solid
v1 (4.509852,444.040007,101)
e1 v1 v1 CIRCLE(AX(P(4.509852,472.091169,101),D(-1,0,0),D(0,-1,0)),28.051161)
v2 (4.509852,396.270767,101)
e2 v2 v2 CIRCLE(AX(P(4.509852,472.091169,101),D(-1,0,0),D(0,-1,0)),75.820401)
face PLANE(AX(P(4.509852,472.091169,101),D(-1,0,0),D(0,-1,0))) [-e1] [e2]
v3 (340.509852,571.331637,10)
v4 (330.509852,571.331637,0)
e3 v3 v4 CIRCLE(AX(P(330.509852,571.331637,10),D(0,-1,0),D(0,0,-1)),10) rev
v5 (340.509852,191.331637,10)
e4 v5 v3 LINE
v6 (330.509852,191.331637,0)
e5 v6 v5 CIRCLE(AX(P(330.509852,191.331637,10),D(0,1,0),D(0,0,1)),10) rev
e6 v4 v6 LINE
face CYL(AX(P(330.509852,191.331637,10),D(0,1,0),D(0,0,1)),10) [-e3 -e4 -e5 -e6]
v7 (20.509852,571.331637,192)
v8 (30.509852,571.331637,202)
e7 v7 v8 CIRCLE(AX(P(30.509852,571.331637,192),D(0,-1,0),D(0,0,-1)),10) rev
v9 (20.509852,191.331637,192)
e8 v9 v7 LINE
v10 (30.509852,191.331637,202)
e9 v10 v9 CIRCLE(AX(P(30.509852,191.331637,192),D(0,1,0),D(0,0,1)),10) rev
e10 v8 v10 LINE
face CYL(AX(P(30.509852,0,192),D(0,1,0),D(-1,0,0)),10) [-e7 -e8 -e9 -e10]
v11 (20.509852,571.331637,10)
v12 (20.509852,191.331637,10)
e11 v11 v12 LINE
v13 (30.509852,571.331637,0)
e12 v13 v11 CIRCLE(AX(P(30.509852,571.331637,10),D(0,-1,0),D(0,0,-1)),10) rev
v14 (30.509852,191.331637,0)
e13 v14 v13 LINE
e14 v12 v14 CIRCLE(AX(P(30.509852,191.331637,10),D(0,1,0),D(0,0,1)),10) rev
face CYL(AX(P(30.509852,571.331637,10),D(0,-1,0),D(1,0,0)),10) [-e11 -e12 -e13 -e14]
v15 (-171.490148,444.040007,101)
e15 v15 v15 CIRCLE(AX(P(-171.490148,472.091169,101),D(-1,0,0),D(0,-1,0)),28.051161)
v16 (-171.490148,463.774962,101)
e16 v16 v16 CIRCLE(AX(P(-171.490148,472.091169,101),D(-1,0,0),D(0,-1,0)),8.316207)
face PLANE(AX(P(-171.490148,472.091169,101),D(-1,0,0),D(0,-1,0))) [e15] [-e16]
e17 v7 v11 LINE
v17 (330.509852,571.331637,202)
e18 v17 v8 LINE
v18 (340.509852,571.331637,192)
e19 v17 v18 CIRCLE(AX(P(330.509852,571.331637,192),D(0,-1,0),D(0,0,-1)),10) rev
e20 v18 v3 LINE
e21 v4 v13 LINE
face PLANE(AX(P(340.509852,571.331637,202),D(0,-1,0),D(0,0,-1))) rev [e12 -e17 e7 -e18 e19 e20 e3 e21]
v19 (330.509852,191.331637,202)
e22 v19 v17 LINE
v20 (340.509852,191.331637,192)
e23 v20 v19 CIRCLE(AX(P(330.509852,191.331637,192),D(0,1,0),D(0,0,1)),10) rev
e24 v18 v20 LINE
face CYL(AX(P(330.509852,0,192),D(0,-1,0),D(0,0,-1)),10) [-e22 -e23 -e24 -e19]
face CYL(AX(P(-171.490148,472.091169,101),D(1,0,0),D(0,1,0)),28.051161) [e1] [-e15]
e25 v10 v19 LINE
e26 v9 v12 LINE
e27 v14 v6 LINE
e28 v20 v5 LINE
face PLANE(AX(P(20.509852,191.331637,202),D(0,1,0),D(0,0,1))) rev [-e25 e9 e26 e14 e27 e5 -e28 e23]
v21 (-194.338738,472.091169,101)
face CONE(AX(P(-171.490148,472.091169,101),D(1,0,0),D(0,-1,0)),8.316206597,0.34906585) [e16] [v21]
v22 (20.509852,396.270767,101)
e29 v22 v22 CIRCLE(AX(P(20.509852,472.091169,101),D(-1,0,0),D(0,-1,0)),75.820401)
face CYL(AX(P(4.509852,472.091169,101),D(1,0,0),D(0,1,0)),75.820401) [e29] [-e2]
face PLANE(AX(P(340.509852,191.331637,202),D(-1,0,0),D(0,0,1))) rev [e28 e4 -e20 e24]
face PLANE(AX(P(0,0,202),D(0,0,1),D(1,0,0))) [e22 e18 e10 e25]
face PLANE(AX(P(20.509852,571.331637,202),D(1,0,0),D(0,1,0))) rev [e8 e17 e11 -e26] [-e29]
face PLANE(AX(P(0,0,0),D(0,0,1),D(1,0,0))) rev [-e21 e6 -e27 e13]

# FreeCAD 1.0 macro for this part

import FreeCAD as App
import Part
import Sketcher
from FreeCAD import Vector
Q = App.Units.Quantity


def edges_at(feature, points):
    """Names of the edges that pass closest to the given points."""
    edges = feature.Shape.Edges
    near = lambda p: min(range(len(edges)), key=lambda i: edges[i].distToShape(Part.Vertex(*p))[0])
    return sorted({f"Edge{near(p) + 1}" for p in points})

doc = App.newDocument("Part")
body = doc.addObject("PartDesign::Body", "Body")

sketch1 = body.newObject("Sketcher::SketchObject", "Sketch")
sketch1.AttachmentSupport = (doc.getObject("XY_Plane"), [""])
sketch1.MapMode = "FlatFace"
sketch1.addGeometry([
    Part.LineSegment(Vector(21, 571, 0), Vector(21, 191, 0)),
    Part.LineSegment(Vector(21, 191, 0), Vector(341, 191, 0)),
    Part.LineSegment(Vector(341, 191, 0), Vector(341, 571, 0)),
    Part.LineSegment(Vector(341, 571, 0), Vector(21, 571, 0)),
], False)
sketch1.addConstraint([
    Sketcher.Constraint("Coincident", 0, 2, 1, 1),
    Sketcher.Constraint("Coincident", 1, 2, 2, 1),
    Sketcher.Constraint("Coincident", 2, 2, 3, 1),
    Sketcher.Constraint("Coincident", 3, 2, 0, 1),
    Sketcher.Constraint("Vertical", 0),
    Sketcher.Constraint("Horizontal", 1),
    Sketcher.Constraint("Vertical", 2),
    Sketcher.Constraint("Horizontal", 3),
    Sketcher.Constraint("DistanceX", 1, 1, 1, 2, Q("320 mm")),
    Sketcher.Constraint("DistanceY", 0, 2, 0, 1, Q("380 mm")),
    Sketcher.Constraint("DistanceX", -1, 1, 0, 2, Q("20.509852 mm")),
    Sketcher.Constraint("DistanceY", -1, 1, 0, 2, Q("191.331637 mm")),
])
pad1 = body.newObject("PartDesign::Pad", "Pad")
pad1.Profile = sketch1
pad1.Length = 202

sketch2 = body.newObject("Sketcher::SketchObject", "Sketch001")
sketch2.AttachmentSupport = (doc.getObject("YZ_Plane"), [""])
sketch2.MapMode = "FlatFace"
sketch2.AttachmentOffset = App.Placement(Vector(0, 0, 20.509852), App.Rotation())
sketch2.addGeometry(Part.Circle(Vector(472, 101, 0), Vector(0, 0, 1), 76), False)
sketch2.addConstraint([
    Sketcher.Constraint("DistanceY", -1, 1, 0, 3, Q("101 mm")),
    Sketcher.Constraint("Diameter", 0, Q("151.640803 mm")),
    Sketcher.Constraint("DistanceX", -1, 1, 0, 3, Q("472.091169 mm")),
])
pad2 = body.newObject("PartDesign::Pad", "Pad001")
pad2.Profile = sketch2
pad2.Length = 16
pad2.Reversed = True

sketch3 = body.newObject("Sketcher::SketchObject", "Sketch002")
sketch3.AttachmentSupport = (doc.getObject("YZ_Plane"), [""])
sketch3.MapMode = "FlatFace"
sketch3.AttachmentOffset = App.Placement(Vector(0, 0, 4.509852), App.Rotation())
sketch3.addGeometry(Part.Circle(Vector(472, 101, 0), Vector(0, 0, 1), 28), False)
sketch3.addConstraint([
    Sketcher.Constraint("DistanceY", -1, 1, 0, 3, Q("101 mm")),
    Sketcher.Constraint("Diameter", 0, Q("56.102323 mm")),
    Sketcher.Constraint("DistanceX", -1, 1, 0, 3, Q("472.091169 mm")),
])
pad3 = body.newObject("PartDesign::Pad", "Pad002")
pad3.Profile = sketch3
pad3.Length = 176
pad3.Reversed = True

sketch4 = body.newObject("Sketcher::SketchObject", "Sketch003")
sketch4.AttachmentSupport = (doc.getObject("XZ_Plane"), [""])
sketch4.MapMode = "FlatFace"
sketch4.AttachmentOffset = App.Placement(Vector(0, 0, -472.091169), App.Rotation())
sketch4.addGeometry([
    Part.LineSegment(Vector(-171, 101, 0), Vector(-171, 93, 0)),
    Part.LineSegment(Vector(-171, 93, 0), Vector(-194, 101, 0)),
    Part.LineSegment(Vector(-194, 101, 0), Vector(-171, 101, 0)),
], False)
sketch4.addGeometry(Part.LineSegment(Vector(-171, 101, 0), Vector(-194, 101, 0)), True)
sketch4.addConstraint([
    Sketcher.Constraint("Coincident", 0, 2, 1, 1),
    Sketcher.Constraint("Coincident", 1, 2, 2, 1),
    Sketcher.Constraint("Coincident", 2, 2, 0, 1),
    Sketcher.Constraint("Vertical", 0),
    Sketcher.Constraint("Horizontal", 2),
    Sketcher.Constraint("Horizontal", 3),
    Sketcher.Constraint("Coincident", 3, 1, 2, 2),
    Sketcher.Constraint("Equal", 2, 3),
    Sketcher.Constraint("Angle", 1, Q("160 deg")),
    Sketcher.Constraint("DistanceY", -1, 1, 1, 2, Q("101 mm")),
    Sketcher.Constraint("DistanceX", 2, 1, 2, 2, Q("22.84859 mm")),
    Sketcher.Constraint("DistanceX", 0, 2, -1, 1, Q("171.490148 mm")),
])
revolution = body.newObject("PartDesign::Revolution", "Revolution")
revolution.Profile = sketch4
revolution.ReferenceAxis = (sketch4, ["Axis0"])
revolution.Angle = 360
doc.recompute()

fillet = body.newObject("PartDesign::Fillet", "Fillet")
fillet.Base = (revolution, edges_at(revolution, [
    (20.51, 381.332, 202),
    (340.51, 381.332, 202),
    (20.51, 381.332, 0),
    (340.51, 381.332, 0),
]))
fillet.Radius = 10

doc.recompute()
